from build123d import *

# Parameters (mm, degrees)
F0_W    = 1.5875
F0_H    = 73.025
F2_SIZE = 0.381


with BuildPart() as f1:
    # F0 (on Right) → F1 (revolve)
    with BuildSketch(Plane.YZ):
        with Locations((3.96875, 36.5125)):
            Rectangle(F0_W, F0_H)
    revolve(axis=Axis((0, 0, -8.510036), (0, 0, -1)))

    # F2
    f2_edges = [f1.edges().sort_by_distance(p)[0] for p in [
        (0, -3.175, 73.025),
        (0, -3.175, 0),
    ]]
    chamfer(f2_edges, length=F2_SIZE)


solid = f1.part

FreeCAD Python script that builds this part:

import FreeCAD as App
import Part
import Sketcher

V = App.Vector
Q = App.Units.Quantity


def edges_at(feature, points):
    """Names of the edges that pass closest to the given points."""
    edges = feature.Shape.Edges
    near = lambda p: min(range(len(edges)), key=lambda i: edges[i].distToShape(Part.Vertex(*p))[0])
    return sorted({f"Edge{near(p) + 1}" for p in points})

doc = App.newDocument("Part")
params = doc.addObject("Spreadsheet::Sheet", "Params")
for row, (alias, value) in enumerate([
    ("sketch1_width", "0.0625 in"),
    ("sketch1_height", "2.875 in"),
    ("revolution_angle", "360 deg"),
    ("chamfer_size", "0.015 in"),
], start=1):
    params.set(f"A{row}", alias)
    params.set(f"B{row}", "=" + value)
    params.setAlias(f"B{row}", alias)

body = doc.addObject("PartDesign::Body", "Body")

# Sketch on YZ plane
sketch1 = body.newObject("Sketcher::SketchObject", "Sketch")
sketch1.AttachmentSupport = (doc.getObject("YZ_Plane"), [""])
sketch1.MapMode = "FlatFace"
sketch1.addGeometry(Part.LineSegment(V(3.175, 73.025, 0), V(3.175, 0, 0)), False)
sketch1.addGeometry(Part.LineSegment(V(3.175, 0, 0), V(4.7625, 0, 0)), False)
sketch1.addGeometry(Part.LineSegment(V(4.7625, 0, 0), V(4.7625, 73.025, 0)), False)
sketch1.addGeometry(Part.LineSegment(V(4.7625, 73.025, 0), V(3.175, 73.025, 0)), False)
sketch1.addConstraint(Sketcher.Constraint("Coincident", 0, 2, 1, 1))
sketch1.addConstraint(Sketcher.Constraint("Coincident", 1, 2, 2, 1))
sketch1.addConstraint(Sketcher.Constraint("Coincident", 2, 2, 3, 1))
sketch1.addConstraint(Sketcher.Constraint("Coincident", 3, 2, 0, 1))
sketch1.addConstraint(Sketcher.Constraint("Vertical", 0))
sketch1.addConstraint(Sketcher.Constraint("Horizontal", 1))
sketch1.addConstraint(Sketcher.Constraint("Vertical", 2))
sketch1.addConstraint(Sketcher.Constraint("Horizontal", 3))
sketch1.addConstraint(Sketcher.Constraint("PointOnObject", 0, 2, -1))
sketch1.addConstraint(Sketcher.Constraint("DistanceX", 1, 1, 1, 2, Q("0.0625 in")))
sketch1.addConstraint(Sketcher.Constraint("DistanceY", 0, 2, 0, 1, Q("2.875 in")))
sketch1.addConstraint(Sketcher.Constraint("DistanceX", -1, 1, 0, 2, Q("0.125 in")))
sketch1.setExpression("Constraints[9]", "Params.sketch1_width")
sketch1.setExpression("Constraints[10]", "Params.sketch1_height")
revolution = body.newObject("PartDesign::Revolution", "Revolution")
revolution.Profile = sketch1
revolution.ReferenceAxis = (sketch1, ["V_Axis"])
revolution.setExpression("Angle", "Params.revolution_angle")
doc.recompute()

chamfer = body.newObject("PartDesign::Chamfer", "Chamfer")
chamfer.Base = (revolution, edges_at(revolution, [(0, -3.175, 73.025), (0, -3.175, 0)]))
chamfer.setExpression("Size", "Params.chamfer_size")

doc.recompute()
